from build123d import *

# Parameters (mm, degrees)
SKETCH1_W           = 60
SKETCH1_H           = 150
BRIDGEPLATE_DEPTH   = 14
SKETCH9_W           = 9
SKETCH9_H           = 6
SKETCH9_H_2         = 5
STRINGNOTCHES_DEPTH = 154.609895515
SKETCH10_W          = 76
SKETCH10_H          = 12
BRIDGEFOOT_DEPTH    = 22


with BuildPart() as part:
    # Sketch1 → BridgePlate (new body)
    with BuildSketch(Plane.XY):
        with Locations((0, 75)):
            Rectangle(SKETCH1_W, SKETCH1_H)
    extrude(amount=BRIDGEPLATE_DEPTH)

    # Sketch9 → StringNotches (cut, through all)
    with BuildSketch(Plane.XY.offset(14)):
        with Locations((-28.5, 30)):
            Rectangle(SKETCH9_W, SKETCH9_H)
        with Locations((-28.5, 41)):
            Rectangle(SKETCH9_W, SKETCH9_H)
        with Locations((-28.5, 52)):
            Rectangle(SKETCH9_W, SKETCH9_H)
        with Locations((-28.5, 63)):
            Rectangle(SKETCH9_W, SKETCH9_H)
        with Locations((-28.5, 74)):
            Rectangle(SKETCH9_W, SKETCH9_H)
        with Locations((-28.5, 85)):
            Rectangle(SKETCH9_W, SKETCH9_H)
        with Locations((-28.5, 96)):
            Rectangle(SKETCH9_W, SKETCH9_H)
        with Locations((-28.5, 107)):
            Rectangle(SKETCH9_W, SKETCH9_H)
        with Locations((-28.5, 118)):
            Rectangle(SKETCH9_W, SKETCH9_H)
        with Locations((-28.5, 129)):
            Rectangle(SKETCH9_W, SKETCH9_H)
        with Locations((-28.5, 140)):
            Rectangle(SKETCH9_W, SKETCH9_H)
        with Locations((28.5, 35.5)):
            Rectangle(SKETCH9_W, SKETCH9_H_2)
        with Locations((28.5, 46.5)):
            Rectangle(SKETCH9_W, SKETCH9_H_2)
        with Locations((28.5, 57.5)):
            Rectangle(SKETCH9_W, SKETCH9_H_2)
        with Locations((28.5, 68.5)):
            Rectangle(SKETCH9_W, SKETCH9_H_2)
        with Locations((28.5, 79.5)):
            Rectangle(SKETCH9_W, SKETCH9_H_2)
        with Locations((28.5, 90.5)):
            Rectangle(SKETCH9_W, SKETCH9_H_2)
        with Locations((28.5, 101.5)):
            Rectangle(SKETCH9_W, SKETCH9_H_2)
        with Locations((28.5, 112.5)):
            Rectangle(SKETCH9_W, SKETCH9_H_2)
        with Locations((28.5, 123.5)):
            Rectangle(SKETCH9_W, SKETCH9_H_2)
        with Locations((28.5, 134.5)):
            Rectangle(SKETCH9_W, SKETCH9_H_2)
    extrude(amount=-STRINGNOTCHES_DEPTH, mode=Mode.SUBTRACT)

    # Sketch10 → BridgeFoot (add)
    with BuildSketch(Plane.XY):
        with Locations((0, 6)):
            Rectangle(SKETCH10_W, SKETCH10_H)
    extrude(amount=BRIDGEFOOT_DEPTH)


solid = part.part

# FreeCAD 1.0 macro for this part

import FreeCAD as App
import Part
import Sketcher

V = App.Vector
Q = App.Units.Quantity


def add_polygon(sketch, points):
    """Adds a closed chain of lines whose ends are joined by coincident constraints."""
    first, n = sketch.GeometryCount, len(points)
    for a, b in zip(points, points[1:] + points[:1]):
        sketch.addGeometry(Part.LineSegment(App.Vector(*a, 0), App.Vector(*b, 0)), False)
    for i in range(n):
        sketch.addConstraint(Sketcher.Constraint("Coincident", first + i, 2, first + (i + 1) % n, 1))

doc = App.newDocument("Part")
params = doc.addObject("Spreadsheet::Sheet", "Params")
for row, (alias, value) in enumerate([
    ("sketch1_width", "60 mm"),
    ("sketch1_height", "150 mm"),
    ("pad1_length", "14 mm"),
    ("sketch2_width", "9 mm"),
    ("sketch2_height", "6 mm"),
    ("sketch2_height2", "5 mm"),
    ("sketch3_width", "76 mm"),
    ("sketch3_height", "12 mm"),
    ("pad2_length", "22 mm"),
], start=1):
    params.set(f"A{row}", alias)
    params.set(f"B{row}", "=" + value)
    params.setAlias(f"B{row}", alias)

body = doc.addObject("PartDesign::Body", "Body")

# Sketch on XY plane
sketch1 = body.newObject("Sketcher::SketchObject", "Sketch")
sketch1.AttachmentSupport = (doc.getObject("XY_Plane"), [""])
sketch1.MapMode = "FlatFace"
add_polygon(sketch1, [(-30, 150), (-30, 0), (30, 0), (30, 150)])  # lines 0-3
sketch1.addConstraint([
    Sketcher.Constraint("Vertical", 0),
    Sketcher.Constraint("Horizontal", 1),
    Sketcher.Constraint("Vertical", 2),
    Sketcher.Constraint("Horizontal", 3),
    Sketcher.Constraint("Symmetric", 0, 2, 1, 2, -1, 1),
    Sketcher.Constraint("DistanceX", 1, 1, 1, 2, Q("60 mm")),
    Sketcher.Constraint("DistanceY", 0, 2, 0, 1, Q("150 mm")),
])
sketch1.setExpression("Constraints[9]", "Params.sketch1_width")
sketch1.setExpression("Constraints[10]", "Params.sketch1_height")
pad1 = body.newObject("PartDesign::Pad", "Pad")
pad1.Profile = sketch1
pad1.setExpression("Length", "Params.pad1_length")

# Sketch on XY plane
sketch2 = body.newObject("Sketcher::SketchObject", "Sketch001")
sketch2.AttachmentSupport = (doc.getObject("XY_Plane"), [""])
sketch2.MapMode = "FlatFace"
sketch2.AttachmentOffset = App.Placement(V(0, 0, 14), App.Rotation())
add_polygon(sketch2, [(-33, 33), (-33, 27), (-24, 27), (-24, 33)])  # lines 0-3
add_polygon(sketch2, [(-33, 44), (-33, 38), (-24, 38), (-24, 44)])  # lines 4-7
add_polygon(sketch2, [(-33, 55), (-33, 49), (-24, 49), (-24, 55)])  # lines 8-11
add_polygon(sketch2, [(-33, 66), (-33, 60), (-24, 60), (-24, 66)])  # lines 12-15
add_polygon(sketch2, [(-33, 77), (-33, 71), (-24, 71), (-24, 77)])  # lines 16-19
add_polygon(sketch2, [(-33, 88), (-33, 82), (-24, 82), (-24, 88)])  # lines 20-23
add_polygon(sketch2, [(-33, 99), (-33, 93), (-24, 93), (-24, 99)])  # lines 24-27
add_polygon(sketch2, [(-33, 110), (-33, 104), (-24, 104), (-24, 110)])  # lines 28-31
add_polygon(sketch2, [(-33, 121), (-33, 115), (-24, 115), (-24, 121)])  # lines 32-35
add_polygon(sketch2, [(-33, 132), (-33, 126), (-24, 126), (-24, 132)])  # lines 36-39
add_polygon(sketch2, [(-33, 143), (-33, 137), (-24, 137), (-24, 143)])  # lines 40-43
add_polygon(sketch2, [(24, 38), (24, 33), (33, 33), (33, 38)])  # lines 44-47
add_polygon(sketch2, [(24, 49), (24, 44), (33, 44), (33, 49)])  # lines 48-51
add_polygon(sketch2, [(24, 60), (24, 55), (33, 55), (33, 60)])  # lines 52-55
add_polygon(sketch2, [(24, 71), (24, 66), (33, 66), (33, 71)])  # lines 56-59
add_polygon(sketch2, [(24, 82), (24, 77), (33, 77), (33, 82)])  # lines 60-63
add_polygon(sketch2, [(24, 93), (24, 88), (33, 88), (33, 93)])  # lines 64-67
add_polygon(sketch2, [(24, 104), (24, 99), (33, 99), (33, 104)])  # lines 68-71
add_polygon(sketch2, [(24, 115), (24, 110), (33, 110), (33, 115)])  # lines 72-75
add_polygon(sketch2, [(24, 126), (24, 121), (33, 121), (33, 126)])  # lines 76-79
add_polygon(sketch2, [(24, 137), (24, 132), (33, 132), (33, 137)])  # lines 80-83
sketch2.addConstraint([
    Sketcher.Constraint("Vertical", 0),
    Sketcher.Constraint("Horizontal", 1),
    Sketcher.Constraint("Vertical", 2),
    Sketcher.Constraint("Horizontal", 3),
    Sketcher.Constraint("Vertical", 4),
    Sketcher.Constraint("Horizontal", 5),
    Sketcher.Constraint("Vertical", 6),
    Sketcher.Constraint("Horizontal", 7),
    Sketcher.Constraint("Vertical", 8),
    Sketcher.Constraint("Horizontal", 9),
    Sketcher.Constraint("Vertical", 10),
    Sketcher.Constraint("Horizontal", 11),
    Sketcher.Constraint("Vertical", 12),
    Sketcher.Constraint("Horizontal", 13),
    Sketcher.Constraint("Vertical", 14),
    Sketcher.Constraint("Horizontal", 15),
    Sketcher.Constraint("Vertical", 16),
    Sketcher.Constraint("Horizontal", 17),
    Sketcher.Constraint("Vertical", 18),
    Sketcher.Constraint("Horizontal", 19),
    Sketcher.Constraint("Vertical", 20),
    Sketcher.Constraint("Horizontal", 21),
    Sketcher.Constraint("Vertical", 22),
    Sketcher.Constraint("Horizontal", 23),
    Sketcher.Constraint("Vertical", 24),
    Sketcher.Constraint("Horizontal", 25),
    Sketcher.Constraint("Vertical", 26),
    Sketcher.Constraint("Horizontal", 27),
    Sketcher.Constraint("Vertical", 28),
    Sketcher.Constraint("Horizontal", 29),
    Sketcher.Constraint("Vertical", 30),
    Sketcher.Constraint("Horizontal", 31),
    Sketcher.Constraint("Vertical", 32),
    Sketcher.Constraint("Horizontal", 33),
    Sketcher.Constraint("Vertical", 34),
    Sketcher.Constraint("Horizontal", 35),
    Sketcher.Constraint("Vertical", 36),
    Sketcher.Constraint("Horizontal", 37),
    Sketcher.Constraint("Vertical", 38),
    Sketcher.Constraint("Horizontal", 39),
    Sketcher.Constraint("Vertical", 40),
    Sketcher.Constraint("Horizontal", 41),
    Sketcher.Constraint("Vertical", 42),
    Sketcher.Constraint("Horizontal", 43),
    Sketcher.Constraint("Vertical", 44),
    Sketcher.Constraint("Horizontal", 45),
    Sketcher.Constraint("Vertical", 46),
    Sketcher.Constraint("Horizontal", 47),
    Sketcher.Constraint("Vertical", 48),
    Sketcher.Constraint("Horizontal", 49),
    Sketcher.Constraint("Vertical", 50),
    Sketcher.Constraint("Horizontal", 51),
    Sketcher.Constraint("Vertical", 52),
    Sketcher.Constraint("Horizontal", 53),
    Sketcher.Constraint("Vertical", 54),
    Sketcher.Constraint("Horizontal", 55),
    Sketcher.Constraint("Vertical", 56),
    Sketcher.Constraint("Horizontal", 57),
    Sketcher.Constraint("Vertical", 58),
    Sketcher.Constraint("Horizontal", 59),
    Sketcher.Constraint("Vertical", 60),
    Sketcher.Constraint("Horizontal", 61),
    Sketcher.Constraint("Vertical", 62),
    Sketcher.Constraint("Horizontal", 63),
    Sketcher.Constraint("Vertical", 64),
    Sketcher.Constraint("Horizontal", 65),
    Sketcher.Constraint("Vertical", 66),
    Sketcher.Constraint("Horizontal", 67),
    Sketcher.Constraint("Vertical", 68),
    Sketcher.Constraint("Horizontal", 69),
    Sketcher.Constraint("Vertical", 70),
    Sketcher.Constraint("Horizontal", 71),
    Sketcher.Constraint("Vertical", 72),
    Sketcher.Constraint("Horizontal", 73),
    Sketcher.Constraint("Vertical", 74),
    Sketcher.Constraint("Horizontal", 75),
    Sketcher.Constraint("Vertical", 76),
    Sketcher.Constraint("Horizontal", 77),
    Sketcher.Constraint("Vertical", 78),
    Sketcher.Constraint("Horizontal", 79),
    Sketcher.Constraint("Vertical", 80),
    Sketcher.Constraint("Horizontal", 81),
    Sketcher.Constraint("Vertical", 82),
    Sketcher.Constraint("Horizontal", 83),
    Sketcher.Constraint("Symmetric", 2, 2, 44, 2, -2),
    Sketcher.Constraint("Symmetric", 4, 2, 46, 2, -2),
    Sketcher.Constraint("Symmetric", 6, 2, 48, 2, -2),
    Sketcher.Constraint("Symmetric", 8, 2, 50, 2, -2),
    Sketcher.Constraint("Symmetric", 10, 2, 52, 2, -2),
    Sketcher.Constraint("Symmetric", 12, 2, 54, 2, -2),
    Sketcher.Constraint("Symmetric", 14, 2, 56, 2, -2),
    Sketcher.Constraint("Symmetric", 16, 2, 58, 2, -2),
    Sketcher.Constraint("Symmetric", 18, 2, 60, 2, -2),
    Sketcher.Constraint("Symmetric", 20, 2, 62, 2, -2),
    Sketcher.Constraint("Symmetric", 22, 2, 64, 2, -2),
    Sketcher.Constraint("Symmetric", 24, 2, 66, 2, -2),
    Sketcher.Constraint("Symmetric", 26, 2, 68, 2, -2),
    Sketcher.Constraint("Symmetric", 28, 2, 70, 2, -2),
    Sketcher.Constraint("Symmetric", 30, 2, 72, 2, -2),
    Sketcher.Constraint("Symmetric", 32, 2, 74, 2, -2),
    Sketcher.Constraint("Symmetric", 34, 2, 76, 2, -2),
    Sketcher.Constraint("Symmetric", 36, 2, 78, 2, -2),
    Sketcher.Constraint("Symmetric", 38, 2, 80, 2, -2),
    Sketcher.Constraint("Symmetric", 40, 2, 82, 2, -2),
    Sketcher.Constraint("Vertical", 3, 2, 4, 2),
    Sketcher.Constraint("Vertical", 2, 2, 5, 2),
    Sketcher.Constraint("Vertical", 7, 2, 8, 2),
    Sketcher.Constraint("Vertical", 6, 2, 9, 2),
    Sketcher.Constraint("Vertical", 11, 2, 12, 2),
    Sketcher.Constraint("Vertical", 10, 2, 13, 2),
    Sketcher.Constraint("Vertical", 15, 2, 16, 2),
    Sketcher.Constraint("Vertical", 14, 2, 17, 2),
    Sketcher.Constraint("Vertical", 19, 2, 20, 2),
    Sketcher.Constraint("Vertical", 18, 2, 21, 2),
    Sketcher.Constraint("Vertical", 23, 2, 24, 2),
    Sketcher.Constraint("Vertical", 22, 2, 25, 2),
    Sketcher.Constraint("Vertical", 27, 2, 28, 2),
    Sketcher.Constraint("Vertical", 26, 2, 29, 2),
    Sketcher.Constraint("Vertical", 31, 2, 32, 2),
    Sketcher.Constraint("Vertical", 30, 2, 33, 2),
    Sketcher.Constraint("Vertical", 35, 2, 36, 2),
    Sketcher.Constraint("Vertical", 34, 2, 37, 2),
    Sketcher.Constraint("Vertical", 39, 2, 40, 2),
    Sketcher.Constraint("Vertical", 38, 2, 41, 2),
    Sketcher.Constraint("Equal", 2, 4),
    Sketcher.Constraint("Equal", 6, 8),
    Sketcher.Constraint("Equal", 10, 12),
    Sketcher.Constraint("Equal", 14, 16),
    Sketcher.Constraint("Equal", 18, 20),
    Sketcher.Constraint("Equal", 22, 24),
    Sketcher.Constraint("Equal", 26, 28),
    Sketcher.Constraint("Equal", 30, 32),
    Sketcher.Constraint("Equal", 34, 36),
    Sketcher.Constraint("Equal", 38, 40),
    Sketcher.Constraint("Equal", 46, 48),
    Sketcher.Constraint("Equal", 50, 52),
    Sketcher.Constraint("Equal", 54, 56),
    Sketcher.Constraint("Equal", 58, 60),
    Sketcher.Constraint("Equal", 62, 64),
    Sketcher.Constraint("Equal", 66, 68),
    Sketcher.Constraint("Equal", 70, 72),
    Sketcher.Constraint("Equal", 74, 76),
    Sketcher.Constraint("Equal", 78, 80),
    Sketcher.Constraint("DistanceX", 1, 1, 1, 2, Q("9 mm")),
    Sketcher.Constraint("DistanceY", 0, 2, 0, 1, Q("6 mm")),
    Sketcher.Constraint("DistanceY", 44, 2, 44, 1, Q("5 mm")),
    Sketcher.Constraint("DistanceX", 0, 2, -1, 1, Q("33 mm")),
    Sketcher.Constraint("DistanceY", -1, 1, 0, 2, Q("27 mm")),
])
sketch2.setExpression("Constraints[227]", "Params.sketch2_width")
sketch2.setExpression("Constraints[228]", "Params.sketch2_height")
sketch2.setExpression("Constraints[229]", "Params.sketch2_height2")
pocket1 = body.newObject("PartDesign::Pocket", "Pocket")
pocket1.Profile = sketch2
pocket1.Type = "ThroughAll"

# Sketch on XY plane
sketch3 = body.newObject("Sketcher::SketchObject", "Sketch002")
sketch3.AttachmentSupport = (doc.getObject("XY_Plane"), [""])
sketch3.MapMode = "FlatFace"
add_polygon(sketch3, [(-38, 12), (-38, 0), (38, 0), (38, 12)])  # lines 0-3
sketch3.addConstraint([
    Sketcher.Constraint("Vertical", 0),
    Sketcher.Constraint("Horizontal", 1),
    Sketcher.Constraint("Vertical", 2),
    Sketcher.Constraint("Horizontal", 3),
    Sketcher.Constraint("Symmetric", 0, 2, 1, 2, -1, 1),
    Sketcher.Constraint("DistanceX", 1, 1, 1, 2, Q("76 mm")),
    Sketcher.Constraint("DistanceY", 0, 2, 0, 1, Q("12 mm")),
])
sketch3.setExpression("Constraints[9]", "Params.sketch3_width")
sketch3.setExpression("Constraints[10]", "Params.sketch3_height")
pad2 = body.newObject("PartDesign::Pad", "Pad001")
pad2.Profile = sketch3
pad2.setExpression("Length", "Params.pad2_length")

doc.recompute()
